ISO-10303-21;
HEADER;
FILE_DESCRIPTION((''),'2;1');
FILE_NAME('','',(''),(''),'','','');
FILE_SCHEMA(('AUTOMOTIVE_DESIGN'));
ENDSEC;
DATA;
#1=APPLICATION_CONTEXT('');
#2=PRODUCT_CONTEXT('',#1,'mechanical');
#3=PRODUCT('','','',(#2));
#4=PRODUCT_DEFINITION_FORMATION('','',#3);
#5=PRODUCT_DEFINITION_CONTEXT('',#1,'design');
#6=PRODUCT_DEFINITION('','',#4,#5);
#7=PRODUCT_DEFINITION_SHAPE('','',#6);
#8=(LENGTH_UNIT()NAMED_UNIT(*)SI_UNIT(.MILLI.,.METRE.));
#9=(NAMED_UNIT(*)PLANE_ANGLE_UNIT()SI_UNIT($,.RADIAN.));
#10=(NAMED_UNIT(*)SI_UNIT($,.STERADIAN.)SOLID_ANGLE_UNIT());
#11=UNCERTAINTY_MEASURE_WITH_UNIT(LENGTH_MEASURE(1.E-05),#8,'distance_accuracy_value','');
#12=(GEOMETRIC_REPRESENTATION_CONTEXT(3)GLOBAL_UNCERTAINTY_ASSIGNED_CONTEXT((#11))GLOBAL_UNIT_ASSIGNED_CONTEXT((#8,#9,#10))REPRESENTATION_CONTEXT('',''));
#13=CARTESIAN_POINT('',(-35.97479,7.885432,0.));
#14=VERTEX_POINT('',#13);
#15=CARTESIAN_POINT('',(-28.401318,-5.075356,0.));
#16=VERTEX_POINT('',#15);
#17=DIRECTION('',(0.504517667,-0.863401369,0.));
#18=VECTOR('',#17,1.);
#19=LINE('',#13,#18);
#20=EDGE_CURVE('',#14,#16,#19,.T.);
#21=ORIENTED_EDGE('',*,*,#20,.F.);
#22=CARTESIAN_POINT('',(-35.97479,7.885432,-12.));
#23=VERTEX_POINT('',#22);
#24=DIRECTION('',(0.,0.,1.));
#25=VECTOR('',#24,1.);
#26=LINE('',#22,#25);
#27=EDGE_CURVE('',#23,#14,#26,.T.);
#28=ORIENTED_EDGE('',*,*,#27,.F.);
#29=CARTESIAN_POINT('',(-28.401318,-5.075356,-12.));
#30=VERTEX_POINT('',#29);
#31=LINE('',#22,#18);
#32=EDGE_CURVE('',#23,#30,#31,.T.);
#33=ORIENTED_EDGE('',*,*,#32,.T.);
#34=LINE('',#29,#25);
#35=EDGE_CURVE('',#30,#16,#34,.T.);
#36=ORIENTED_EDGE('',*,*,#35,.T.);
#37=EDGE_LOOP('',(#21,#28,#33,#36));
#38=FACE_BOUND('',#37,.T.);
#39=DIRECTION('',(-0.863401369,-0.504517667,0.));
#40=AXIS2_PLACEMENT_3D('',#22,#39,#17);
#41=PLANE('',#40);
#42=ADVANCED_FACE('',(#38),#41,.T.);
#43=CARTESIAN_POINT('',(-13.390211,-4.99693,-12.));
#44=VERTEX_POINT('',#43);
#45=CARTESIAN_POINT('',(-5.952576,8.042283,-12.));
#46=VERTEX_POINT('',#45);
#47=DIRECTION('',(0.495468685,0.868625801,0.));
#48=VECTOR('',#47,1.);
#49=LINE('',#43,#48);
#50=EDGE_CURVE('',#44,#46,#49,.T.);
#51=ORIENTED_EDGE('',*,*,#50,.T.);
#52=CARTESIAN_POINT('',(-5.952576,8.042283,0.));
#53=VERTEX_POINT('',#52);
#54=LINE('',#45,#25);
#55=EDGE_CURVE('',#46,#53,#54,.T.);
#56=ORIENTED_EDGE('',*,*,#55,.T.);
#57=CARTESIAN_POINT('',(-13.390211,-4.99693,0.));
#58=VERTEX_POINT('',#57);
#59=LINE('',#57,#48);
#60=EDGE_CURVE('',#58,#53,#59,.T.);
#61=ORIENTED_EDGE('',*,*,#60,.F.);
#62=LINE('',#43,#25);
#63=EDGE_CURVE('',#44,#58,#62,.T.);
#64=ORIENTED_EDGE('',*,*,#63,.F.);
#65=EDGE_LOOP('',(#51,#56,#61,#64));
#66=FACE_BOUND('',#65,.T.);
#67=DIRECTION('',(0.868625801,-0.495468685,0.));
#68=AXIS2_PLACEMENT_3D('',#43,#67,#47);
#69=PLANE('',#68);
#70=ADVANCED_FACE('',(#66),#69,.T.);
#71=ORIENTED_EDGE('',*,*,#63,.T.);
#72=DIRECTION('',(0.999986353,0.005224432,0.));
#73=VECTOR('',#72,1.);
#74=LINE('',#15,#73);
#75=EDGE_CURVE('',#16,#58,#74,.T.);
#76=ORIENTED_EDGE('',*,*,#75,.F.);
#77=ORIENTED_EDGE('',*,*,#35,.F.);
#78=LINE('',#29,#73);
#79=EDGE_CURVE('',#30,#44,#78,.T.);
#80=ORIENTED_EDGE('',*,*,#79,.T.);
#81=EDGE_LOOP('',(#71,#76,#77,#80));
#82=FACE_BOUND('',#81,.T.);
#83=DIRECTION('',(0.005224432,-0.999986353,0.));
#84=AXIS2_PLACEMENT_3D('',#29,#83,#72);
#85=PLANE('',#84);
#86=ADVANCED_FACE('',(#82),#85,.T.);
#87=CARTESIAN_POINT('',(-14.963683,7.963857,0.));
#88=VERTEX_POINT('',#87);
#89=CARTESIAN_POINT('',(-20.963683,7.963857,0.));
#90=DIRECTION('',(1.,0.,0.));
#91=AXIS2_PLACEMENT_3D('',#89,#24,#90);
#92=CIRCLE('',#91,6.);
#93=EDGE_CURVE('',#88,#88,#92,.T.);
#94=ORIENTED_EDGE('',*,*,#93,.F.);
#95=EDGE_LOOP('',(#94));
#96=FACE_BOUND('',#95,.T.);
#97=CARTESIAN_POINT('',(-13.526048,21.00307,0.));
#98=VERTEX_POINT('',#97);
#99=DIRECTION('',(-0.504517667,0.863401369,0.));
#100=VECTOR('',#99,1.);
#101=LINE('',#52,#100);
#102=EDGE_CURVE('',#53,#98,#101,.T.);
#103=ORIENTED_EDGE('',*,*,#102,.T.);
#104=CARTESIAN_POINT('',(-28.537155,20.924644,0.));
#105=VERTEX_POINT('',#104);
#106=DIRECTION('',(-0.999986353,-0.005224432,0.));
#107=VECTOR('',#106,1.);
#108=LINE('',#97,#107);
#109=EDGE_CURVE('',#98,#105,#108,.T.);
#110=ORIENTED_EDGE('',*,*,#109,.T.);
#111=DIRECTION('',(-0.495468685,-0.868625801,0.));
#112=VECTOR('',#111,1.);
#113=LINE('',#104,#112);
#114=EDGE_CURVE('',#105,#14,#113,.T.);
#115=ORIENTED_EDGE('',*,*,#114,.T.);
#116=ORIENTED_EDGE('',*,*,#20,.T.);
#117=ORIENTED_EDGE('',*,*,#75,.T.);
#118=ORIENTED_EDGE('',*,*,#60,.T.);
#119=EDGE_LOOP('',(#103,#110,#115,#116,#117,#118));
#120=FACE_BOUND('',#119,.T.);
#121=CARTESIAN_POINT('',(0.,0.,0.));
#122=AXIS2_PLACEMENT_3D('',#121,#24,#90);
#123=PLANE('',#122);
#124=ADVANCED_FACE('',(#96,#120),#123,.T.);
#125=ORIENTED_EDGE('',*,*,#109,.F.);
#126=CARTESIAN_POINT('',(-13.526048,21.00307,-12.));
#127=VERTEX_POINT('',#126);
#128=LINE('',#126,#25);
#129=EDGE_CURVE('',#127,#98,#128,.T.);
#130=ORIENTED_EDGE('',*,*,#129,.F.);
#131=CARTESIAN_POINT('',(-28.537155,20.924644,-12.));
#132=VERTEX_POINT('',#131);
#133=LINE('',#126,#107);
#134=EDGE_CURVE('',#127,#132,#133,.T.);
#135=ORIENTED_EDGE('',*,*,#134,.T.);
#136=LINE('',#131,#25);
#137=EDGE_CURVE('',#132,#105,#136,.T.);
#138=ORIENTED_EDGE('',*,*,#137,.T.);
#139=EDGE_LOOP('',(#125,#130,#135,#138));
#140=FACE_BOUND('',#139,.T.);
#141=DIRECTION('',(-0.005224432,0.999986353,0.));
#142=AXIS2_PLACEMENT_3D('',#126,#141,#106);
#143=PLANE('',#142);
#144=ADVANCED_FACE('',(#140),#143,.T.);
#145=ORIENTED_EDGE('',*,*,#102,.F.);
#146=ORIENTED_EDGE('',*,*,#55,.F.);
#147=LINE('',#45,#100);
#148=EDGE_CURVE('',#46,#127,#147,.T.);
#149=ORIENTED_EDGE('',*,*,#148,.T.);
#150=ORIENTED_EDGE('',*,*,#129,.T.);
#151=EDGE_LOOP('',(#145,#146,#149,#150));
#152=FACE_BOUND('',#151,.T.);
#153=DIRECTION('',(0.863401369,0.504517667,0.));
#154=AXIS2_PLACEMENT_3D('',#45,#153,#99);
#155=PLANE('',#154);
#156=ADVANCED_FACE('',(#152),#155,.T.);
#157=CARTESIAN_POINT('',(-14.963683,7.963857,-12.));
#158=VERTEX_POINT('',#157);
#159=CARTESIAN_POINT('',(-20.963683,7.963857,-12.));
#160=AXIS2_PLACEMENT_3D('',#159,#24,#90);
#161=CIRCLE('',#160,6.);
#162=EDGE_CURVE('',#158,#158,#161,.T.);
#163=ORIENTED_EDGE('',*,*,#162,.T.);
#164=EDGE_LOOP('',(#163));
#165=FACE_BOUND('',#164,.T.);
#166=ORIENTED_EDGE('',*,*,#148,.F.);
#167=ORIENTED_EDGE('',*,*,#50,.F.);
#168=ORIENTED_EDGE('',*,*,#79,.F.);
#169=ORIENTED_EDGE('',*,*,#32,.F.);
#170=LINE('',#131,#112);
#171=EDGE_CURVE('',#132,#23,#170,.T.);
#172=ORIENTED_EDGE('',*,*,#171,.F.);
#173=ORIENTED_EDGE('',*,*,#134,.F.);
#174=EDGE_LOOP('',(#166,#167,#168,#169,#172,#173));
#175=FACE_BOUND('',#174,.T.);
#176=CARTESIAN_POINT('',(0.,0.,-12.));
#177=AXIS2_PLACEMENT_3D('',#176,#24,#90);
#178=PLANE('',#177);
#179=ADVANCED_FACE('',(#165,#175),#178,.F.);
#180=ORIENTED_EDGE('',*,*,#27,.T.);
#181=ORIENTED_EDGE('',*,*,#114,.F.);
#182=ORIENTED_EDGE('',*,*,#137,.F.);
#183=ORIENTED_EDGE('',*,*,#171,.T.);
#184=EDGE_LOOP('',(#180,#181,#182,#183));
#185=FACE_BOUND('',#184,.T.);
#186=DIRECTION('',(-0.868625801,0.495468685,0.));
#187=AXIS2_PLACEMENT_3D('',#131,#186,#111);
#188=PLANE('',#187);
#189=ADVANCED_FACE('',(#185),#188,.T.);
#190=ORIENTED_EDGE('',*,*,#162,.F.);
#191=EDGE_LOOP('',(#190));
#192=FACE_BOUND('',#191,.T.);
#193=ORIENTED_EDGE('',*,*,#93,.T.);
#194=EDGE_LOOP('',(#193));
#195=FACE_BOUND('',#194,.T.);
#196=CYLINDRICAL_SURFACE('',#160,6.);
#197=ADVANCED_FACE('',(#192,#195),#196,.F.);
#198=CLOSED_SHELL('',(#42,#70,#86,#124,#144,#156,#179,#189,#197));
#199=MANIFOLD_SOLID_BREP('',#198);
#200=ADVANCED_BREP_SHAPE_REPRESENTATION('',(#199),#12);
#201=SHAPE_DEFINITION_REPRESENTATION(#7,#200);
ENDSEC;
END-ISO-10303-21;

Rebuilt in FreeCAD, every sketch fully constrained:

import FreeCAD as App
import Part
import Sketcher

V = App.Vector


def add_polygon(sketch, points):
    """Adds a closed chain of lines whose ends are joined by coincident constraints."""
    first, n = sketch.GeometryCount, len(points)
    for a, b in zip(points, points[1:] + points[:1]):
        sketch.addGeometry(Part.LineSegment(App.Vector(*a, 0), App.Vector(*b, 0)), False)
    for i in range(n):
        sketch.addConstraint(Sketcher.Constraint("Coincident", first + i, 2, first + (i + 1) % n, 1))

doc = App.newDocument("Part")
body = doc.addObject("PartDesign::Body", "Body")

# Sketch on XY plane
sketch1 = doc.addObject("Sketcher::SketchObject", "Sketch")
body.addObject(sketch1)
sketch1.AttachmentSupport = (doc.XY_Plane, [""])
sketch1.MapMode = "FlatFace"
add_polygon(sketch1, [(-13, -5), (-6, 8), (-14, 21), (-29, 21), (-36, 8), (-28, -5)])  # lines 0-5
sketch1.addGeometry(Part.Circle(V(-21, 8, 0), V(0, 0, 1), 6), False)  # 6
sketch1.addConstraint([
    Sketcher.Constraint("Parallel", 0, 3),
    Sketcher.Constraint("Parallel", 1, 4),
    Sketcher.Constraint("Parallel", 2, 5),
    Sketcher.Constraint("Equal", 0, 1),
    Sketcher.Constraint("Equal", 1, 2),
    Sketcher.Constraint("Equal", 2, 3),
    Sketcher.Constraint("Diameter", 6, 12.0),
    Sketcher.Constraint("DistanceY", 4, 2, 2, 2, 26.0),
    Sketcher.Constraint("Distance", 0, 15.011312),
    Sketcher.Constraint("DistanceY", -1, 1, 1, 2, 21.00307),
    Sketcher.Constraint("DistanceX", 3, 2, -1, 1, 35.97479),
    Sketcher.Constraint("DistanceY", -1, 1, 3, 2, 7.885432),
    Sketcher.Constraint("DistanceX", 5, 2, -1, 1, 13.390211),
    Sketcher.Constraint("DistanceX", 6, 3, -1, 1, 20.963683),
    Sketcher.Constraint("DistanceY", -1, 1, 6, 3, 7.963857),
])
pad1 = doc.addObject("PartDesign::Pad", "Pad")
body.addObject(pad1)
pad1.Profile = sketch1
pad1.Length = 12
pad1.Reversed = True

doc.recompute()
